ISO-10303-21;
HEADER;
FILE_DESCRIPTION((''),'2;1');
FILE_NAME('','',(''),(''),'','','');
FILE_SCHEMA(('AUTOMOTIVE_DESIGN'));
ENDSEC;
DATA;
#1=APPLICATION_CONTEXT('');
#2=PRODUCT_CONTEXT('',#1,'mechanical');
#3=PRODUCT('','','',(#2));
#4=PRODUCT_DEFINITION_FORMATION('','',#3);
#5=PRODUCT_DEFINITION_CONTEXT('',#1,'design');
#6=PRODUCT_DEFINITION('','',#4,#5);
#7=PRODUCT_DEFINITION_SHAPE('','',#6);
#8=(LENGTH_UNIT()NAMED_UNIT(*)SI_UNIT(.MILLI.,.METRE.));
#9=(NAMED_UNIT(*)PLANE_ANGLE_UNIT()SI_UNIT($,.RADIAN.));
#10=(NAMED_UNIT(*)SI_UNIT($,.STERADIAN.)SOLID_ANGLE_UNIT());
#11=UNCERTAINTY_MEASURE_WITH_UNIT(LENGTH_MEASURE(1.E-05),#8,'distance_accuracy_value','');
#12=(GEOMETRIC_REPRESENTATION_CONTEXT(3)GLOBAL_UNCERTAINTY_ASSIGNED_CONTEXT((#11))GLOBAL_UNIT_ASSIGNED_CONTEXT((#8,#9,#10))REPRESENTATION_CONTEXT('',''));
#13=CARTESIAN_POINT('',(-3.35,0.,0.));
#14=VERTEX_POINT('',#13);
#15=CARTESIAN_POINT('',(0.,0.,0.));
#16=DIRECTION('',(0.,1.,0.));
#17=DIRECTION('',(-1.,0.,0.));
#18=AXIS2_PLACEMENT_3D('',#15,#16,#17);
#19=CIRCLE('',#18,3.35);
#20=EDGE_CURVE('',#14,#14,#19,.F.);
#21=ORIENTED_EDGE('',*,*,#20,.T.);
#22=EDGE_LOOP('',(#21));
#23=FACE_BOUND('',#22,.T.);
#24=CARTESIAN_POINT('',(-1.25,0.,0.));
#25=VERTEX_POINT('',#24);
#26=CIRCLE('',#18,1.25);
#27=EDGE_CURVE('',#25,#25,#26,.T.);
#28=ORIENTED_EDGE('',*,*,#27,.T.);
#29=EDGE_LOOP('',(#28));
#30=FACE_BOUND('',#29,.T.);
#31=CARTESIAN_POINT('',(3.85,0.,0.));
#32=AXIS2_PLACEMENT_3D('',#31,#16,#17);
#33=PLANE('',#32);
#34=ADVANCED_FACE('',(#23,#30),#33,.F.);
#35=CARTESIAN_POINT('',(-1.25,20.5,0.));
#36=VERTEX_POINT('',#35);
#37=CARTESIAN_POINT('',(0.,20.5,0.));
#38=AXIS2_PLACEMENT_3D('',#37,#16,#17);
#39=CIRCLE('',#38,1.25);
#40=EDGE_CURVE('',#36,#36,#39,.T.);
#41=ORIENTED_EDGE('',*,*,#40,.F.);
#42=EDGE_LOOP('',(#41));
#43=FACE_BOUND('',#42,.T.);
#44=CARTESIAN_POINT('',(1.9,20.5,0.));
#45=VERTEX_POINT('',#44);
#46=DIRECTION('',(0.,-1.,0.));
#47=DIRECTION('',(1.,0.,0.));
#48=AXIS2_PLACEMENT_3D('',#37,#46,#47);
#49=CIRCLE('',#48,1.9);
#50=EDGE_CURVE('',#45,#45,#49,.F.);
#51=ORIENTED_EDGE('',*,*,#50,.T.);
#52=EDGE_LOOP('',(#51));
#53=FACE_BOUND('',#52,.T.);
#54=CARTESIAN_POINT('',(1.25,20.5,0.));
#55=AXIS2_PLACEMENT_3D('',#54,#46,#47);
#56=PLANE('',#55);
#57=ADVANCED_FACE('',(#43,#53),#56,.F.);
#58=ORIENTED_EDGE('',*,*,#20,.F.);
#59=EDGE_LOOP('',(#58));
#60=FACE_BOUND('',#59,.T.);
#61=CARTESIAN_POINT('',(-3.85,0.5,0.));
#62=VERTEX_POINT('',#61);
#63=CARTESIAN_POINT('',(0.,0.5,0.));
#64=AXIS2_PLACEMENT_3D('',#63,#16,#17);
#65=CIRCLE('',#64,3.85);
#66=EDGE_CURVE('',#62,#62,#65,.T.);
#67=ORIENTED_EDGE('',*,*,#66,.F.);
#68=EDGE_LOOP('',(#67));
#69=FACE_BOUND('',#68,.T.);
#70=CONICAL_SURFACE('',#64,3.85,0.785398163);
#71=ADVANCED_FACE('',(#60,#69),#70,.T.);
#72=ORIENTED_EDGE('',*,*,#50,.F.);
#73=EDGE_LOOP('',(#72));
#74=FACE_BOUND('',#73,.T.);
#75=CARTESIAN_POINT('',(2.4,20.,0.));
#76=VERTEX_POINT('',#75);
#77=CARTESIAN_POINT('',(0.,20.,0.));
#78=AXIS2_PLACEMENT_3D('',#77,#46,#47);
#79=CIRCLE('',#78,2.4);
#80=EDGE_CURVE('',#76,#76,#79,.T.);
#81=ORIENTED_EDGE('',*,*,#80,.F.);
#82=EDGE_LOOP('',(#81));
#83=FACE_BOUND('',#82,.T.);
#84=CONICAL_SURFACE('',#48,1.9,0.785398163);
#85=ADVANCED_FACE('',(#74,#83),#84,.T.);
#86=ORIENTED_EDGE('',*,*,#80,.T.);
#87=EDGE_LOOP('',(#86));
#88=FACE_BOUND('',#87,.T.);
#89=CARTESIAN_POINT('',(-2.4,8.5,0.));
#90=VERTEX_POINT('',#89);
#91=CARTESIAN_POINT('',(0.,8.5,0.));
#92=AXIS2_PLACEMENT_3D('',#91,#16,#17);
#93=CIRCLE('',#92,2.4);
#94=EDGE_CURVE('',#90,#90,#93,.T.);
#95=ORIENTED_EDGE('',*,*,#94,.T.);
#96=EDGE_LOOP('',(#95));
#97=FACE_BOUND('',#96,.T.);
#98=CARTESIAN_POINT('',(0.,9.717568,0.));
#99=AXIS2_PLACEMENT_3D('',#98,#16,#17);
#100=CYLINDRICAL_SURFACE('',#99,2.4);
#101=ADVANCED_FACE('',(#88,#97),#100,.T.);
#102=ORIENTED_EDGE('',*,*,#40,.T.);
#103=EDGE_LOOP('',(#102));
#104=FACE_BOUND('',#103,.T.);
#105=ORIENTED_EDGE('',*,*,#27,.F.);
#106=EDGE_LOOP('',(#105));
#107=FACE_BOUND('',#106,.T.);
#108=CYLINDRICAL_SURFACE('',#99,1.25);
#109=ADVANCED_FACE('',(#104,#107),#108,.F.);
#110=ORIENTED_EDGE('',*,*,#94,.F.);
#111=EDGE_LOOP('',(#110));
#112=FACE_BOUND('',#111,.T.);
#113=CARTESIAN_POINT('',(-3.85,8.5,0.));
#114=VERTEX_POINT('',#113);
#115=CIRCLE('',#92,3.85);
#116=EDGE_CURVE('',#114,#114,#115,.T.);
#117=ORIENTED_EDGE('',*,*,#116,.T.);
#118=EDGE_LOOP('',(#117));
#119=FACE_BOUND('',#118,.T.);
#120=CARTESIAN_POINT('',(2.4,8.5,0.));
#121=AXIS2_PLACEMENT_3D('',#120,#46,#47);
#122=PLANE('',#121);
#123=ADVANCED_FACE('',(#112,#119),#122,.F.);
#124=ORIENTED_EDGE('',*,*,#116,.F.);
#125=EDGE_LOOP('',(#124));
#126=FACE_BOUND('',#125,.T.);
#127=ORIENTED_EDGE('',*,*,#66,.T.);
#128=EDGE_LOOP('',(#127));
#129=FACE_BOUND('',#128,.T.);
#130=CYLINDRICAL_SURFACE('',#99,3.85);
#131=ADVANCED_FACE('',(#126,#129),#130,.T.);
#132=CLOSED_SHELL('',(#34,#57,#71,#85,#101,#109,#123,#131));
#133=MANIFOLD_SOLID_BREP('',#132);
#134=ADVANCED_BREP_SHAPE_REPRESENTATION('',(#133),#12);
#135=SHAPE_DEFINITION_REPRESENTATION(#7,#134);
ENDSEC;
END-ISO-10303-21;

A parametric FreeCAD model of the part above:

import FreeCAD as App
import Part
import Sketcher
Q = App.Units.Quantity


def edges_at(feature, points):
    """Names of the edges that pass closest to the given points."""
    edges = feature.Shape.Edges
    near = lambda p: min(range(len(edges)), key=lambda i: edges[i].distToShape(Part.Vertex(*p))[0])
    return sorted({f"Edge{near(p) + 1}" for p in points})

doc = App.newDocument("Part")
body = doc.addObject("PartDesign::Body", "Body")

# Sketch on XY plane
sketch1 = doc.addObject("Sketcher::SketchObject", "Sketch")
body.addObject(sketch1)
sketch1.AttachmentSupport = (doc.XY_Plane, [""])
sketch1.MapMode = "FlatFace"
sketch1.addGeometry(Part.LineSegment(App.Vector(1.2, 20.5, 0), App.Vector(1.2, 0, 0)), False)
sketch1.addGeometry(Part.LineSegment(App.Vector(1.2, 0, 0), App.Vector(3.9, 0, 0)), False)
sketch1.addGeometry(Part.LineSegment(App.Vector(3.9, 0, 0), App.Vector(3.9, 8.5, 0)), False)
sketch1.addGeometry(Part.LineSegment(App.Vector(3.9, 8.5, 0), App.Vector(2.4, 8.5, 0)), False)
sketch1.addGeometry(Part.LineSegment(App.Vector(2.4, 8.5, 0), App.Vector(2.4, 20.5, 0)), False)
sketch1.addGeometry(Part.LineSegment(App.Vector(2.4, 20.5, 0), App.Vector(1.2, 20.5, 0)), False)
sketch1.addConstraint(Sketcher.Constraint("Coincident", 0, 2, 1, 1))
sketch1.addConstraint(Sketcher.Constraint("Coincident", 1, 2, 2, 1))
sketch1.addConstraint(Sketcher.Constraint("Coincident", 2, 2, 3, 1))
sketch1.addConstraint(Sketcher.Constraint("Coincident", 3, 2, 4, 1))
sketch1.addConstraint(Sketcher.Constraint("Coincident", 4, 2, 5, 1))
sketch1.addConstraint(Sketcher.Constraint("Coincident", 5, 2, 0, 1))
sketch1.addConstraint(Sketcher.Constraint("Vertical", 0))
sketch1.addConstraint(Sketcher.Constraint("Horizontal", 1))
sketch1.addConstraint(Sketcher.Constraint("Vertical", 2))
sketch1.addConstraint(Sketcher.Constraint("Horizontal", 3))
sketch1.addConstraint(Sketcher.Constraint("Vertical", 4))
sketch1.addConstraint(Sketcher.Constraint("Horizontal", 5))
sketch1.addConstraint(Sketcher.Constraint("PointOnObject", 0, 2, -1))
sketch1.addConstraint(Sketcher.Constraint("DistanceY", 4, 1, 4, 2, Q("12 mm")))
sketch1.addConstraint(Sketcher.Constraint("DistanceX", 1, 1, 1, 2, Q("2.6 mm")))
sketch1.addConstraint(Sketcher.Constraint("DistanceY", 0, 2, 0, 1, Q("20.5 mm")))
sketch1.addConstraint(Sketcher.Constraint("DistanceX", 3, 2, 3, 1, Q("1.45 mm")))
sketch1.addConstraint(Sketcher.Constraint("DistanceX", -1, 1, 3, 2, Q("2.4 mm")))
revolution = doc.addObject("PartDesign::Revolution", "Revolution")
body.addObject(revolution)
revolution.Profile = sketch1
revolution.ReferenceAxis = (sketch1, ["V_Axis"])
revolution.Angle = 360
doc.recompute()

chamfer = doc.addObject("PartDesign::Chamfer", "Chamfer")
body.addObject(chamfer)
chamfer.Base = (revolution, edges_at(revolution, [(-3.85, 0, 0), (-2.4, 20.5, 0)]))
chamfer.Size = 0.5

doc.recompute()
